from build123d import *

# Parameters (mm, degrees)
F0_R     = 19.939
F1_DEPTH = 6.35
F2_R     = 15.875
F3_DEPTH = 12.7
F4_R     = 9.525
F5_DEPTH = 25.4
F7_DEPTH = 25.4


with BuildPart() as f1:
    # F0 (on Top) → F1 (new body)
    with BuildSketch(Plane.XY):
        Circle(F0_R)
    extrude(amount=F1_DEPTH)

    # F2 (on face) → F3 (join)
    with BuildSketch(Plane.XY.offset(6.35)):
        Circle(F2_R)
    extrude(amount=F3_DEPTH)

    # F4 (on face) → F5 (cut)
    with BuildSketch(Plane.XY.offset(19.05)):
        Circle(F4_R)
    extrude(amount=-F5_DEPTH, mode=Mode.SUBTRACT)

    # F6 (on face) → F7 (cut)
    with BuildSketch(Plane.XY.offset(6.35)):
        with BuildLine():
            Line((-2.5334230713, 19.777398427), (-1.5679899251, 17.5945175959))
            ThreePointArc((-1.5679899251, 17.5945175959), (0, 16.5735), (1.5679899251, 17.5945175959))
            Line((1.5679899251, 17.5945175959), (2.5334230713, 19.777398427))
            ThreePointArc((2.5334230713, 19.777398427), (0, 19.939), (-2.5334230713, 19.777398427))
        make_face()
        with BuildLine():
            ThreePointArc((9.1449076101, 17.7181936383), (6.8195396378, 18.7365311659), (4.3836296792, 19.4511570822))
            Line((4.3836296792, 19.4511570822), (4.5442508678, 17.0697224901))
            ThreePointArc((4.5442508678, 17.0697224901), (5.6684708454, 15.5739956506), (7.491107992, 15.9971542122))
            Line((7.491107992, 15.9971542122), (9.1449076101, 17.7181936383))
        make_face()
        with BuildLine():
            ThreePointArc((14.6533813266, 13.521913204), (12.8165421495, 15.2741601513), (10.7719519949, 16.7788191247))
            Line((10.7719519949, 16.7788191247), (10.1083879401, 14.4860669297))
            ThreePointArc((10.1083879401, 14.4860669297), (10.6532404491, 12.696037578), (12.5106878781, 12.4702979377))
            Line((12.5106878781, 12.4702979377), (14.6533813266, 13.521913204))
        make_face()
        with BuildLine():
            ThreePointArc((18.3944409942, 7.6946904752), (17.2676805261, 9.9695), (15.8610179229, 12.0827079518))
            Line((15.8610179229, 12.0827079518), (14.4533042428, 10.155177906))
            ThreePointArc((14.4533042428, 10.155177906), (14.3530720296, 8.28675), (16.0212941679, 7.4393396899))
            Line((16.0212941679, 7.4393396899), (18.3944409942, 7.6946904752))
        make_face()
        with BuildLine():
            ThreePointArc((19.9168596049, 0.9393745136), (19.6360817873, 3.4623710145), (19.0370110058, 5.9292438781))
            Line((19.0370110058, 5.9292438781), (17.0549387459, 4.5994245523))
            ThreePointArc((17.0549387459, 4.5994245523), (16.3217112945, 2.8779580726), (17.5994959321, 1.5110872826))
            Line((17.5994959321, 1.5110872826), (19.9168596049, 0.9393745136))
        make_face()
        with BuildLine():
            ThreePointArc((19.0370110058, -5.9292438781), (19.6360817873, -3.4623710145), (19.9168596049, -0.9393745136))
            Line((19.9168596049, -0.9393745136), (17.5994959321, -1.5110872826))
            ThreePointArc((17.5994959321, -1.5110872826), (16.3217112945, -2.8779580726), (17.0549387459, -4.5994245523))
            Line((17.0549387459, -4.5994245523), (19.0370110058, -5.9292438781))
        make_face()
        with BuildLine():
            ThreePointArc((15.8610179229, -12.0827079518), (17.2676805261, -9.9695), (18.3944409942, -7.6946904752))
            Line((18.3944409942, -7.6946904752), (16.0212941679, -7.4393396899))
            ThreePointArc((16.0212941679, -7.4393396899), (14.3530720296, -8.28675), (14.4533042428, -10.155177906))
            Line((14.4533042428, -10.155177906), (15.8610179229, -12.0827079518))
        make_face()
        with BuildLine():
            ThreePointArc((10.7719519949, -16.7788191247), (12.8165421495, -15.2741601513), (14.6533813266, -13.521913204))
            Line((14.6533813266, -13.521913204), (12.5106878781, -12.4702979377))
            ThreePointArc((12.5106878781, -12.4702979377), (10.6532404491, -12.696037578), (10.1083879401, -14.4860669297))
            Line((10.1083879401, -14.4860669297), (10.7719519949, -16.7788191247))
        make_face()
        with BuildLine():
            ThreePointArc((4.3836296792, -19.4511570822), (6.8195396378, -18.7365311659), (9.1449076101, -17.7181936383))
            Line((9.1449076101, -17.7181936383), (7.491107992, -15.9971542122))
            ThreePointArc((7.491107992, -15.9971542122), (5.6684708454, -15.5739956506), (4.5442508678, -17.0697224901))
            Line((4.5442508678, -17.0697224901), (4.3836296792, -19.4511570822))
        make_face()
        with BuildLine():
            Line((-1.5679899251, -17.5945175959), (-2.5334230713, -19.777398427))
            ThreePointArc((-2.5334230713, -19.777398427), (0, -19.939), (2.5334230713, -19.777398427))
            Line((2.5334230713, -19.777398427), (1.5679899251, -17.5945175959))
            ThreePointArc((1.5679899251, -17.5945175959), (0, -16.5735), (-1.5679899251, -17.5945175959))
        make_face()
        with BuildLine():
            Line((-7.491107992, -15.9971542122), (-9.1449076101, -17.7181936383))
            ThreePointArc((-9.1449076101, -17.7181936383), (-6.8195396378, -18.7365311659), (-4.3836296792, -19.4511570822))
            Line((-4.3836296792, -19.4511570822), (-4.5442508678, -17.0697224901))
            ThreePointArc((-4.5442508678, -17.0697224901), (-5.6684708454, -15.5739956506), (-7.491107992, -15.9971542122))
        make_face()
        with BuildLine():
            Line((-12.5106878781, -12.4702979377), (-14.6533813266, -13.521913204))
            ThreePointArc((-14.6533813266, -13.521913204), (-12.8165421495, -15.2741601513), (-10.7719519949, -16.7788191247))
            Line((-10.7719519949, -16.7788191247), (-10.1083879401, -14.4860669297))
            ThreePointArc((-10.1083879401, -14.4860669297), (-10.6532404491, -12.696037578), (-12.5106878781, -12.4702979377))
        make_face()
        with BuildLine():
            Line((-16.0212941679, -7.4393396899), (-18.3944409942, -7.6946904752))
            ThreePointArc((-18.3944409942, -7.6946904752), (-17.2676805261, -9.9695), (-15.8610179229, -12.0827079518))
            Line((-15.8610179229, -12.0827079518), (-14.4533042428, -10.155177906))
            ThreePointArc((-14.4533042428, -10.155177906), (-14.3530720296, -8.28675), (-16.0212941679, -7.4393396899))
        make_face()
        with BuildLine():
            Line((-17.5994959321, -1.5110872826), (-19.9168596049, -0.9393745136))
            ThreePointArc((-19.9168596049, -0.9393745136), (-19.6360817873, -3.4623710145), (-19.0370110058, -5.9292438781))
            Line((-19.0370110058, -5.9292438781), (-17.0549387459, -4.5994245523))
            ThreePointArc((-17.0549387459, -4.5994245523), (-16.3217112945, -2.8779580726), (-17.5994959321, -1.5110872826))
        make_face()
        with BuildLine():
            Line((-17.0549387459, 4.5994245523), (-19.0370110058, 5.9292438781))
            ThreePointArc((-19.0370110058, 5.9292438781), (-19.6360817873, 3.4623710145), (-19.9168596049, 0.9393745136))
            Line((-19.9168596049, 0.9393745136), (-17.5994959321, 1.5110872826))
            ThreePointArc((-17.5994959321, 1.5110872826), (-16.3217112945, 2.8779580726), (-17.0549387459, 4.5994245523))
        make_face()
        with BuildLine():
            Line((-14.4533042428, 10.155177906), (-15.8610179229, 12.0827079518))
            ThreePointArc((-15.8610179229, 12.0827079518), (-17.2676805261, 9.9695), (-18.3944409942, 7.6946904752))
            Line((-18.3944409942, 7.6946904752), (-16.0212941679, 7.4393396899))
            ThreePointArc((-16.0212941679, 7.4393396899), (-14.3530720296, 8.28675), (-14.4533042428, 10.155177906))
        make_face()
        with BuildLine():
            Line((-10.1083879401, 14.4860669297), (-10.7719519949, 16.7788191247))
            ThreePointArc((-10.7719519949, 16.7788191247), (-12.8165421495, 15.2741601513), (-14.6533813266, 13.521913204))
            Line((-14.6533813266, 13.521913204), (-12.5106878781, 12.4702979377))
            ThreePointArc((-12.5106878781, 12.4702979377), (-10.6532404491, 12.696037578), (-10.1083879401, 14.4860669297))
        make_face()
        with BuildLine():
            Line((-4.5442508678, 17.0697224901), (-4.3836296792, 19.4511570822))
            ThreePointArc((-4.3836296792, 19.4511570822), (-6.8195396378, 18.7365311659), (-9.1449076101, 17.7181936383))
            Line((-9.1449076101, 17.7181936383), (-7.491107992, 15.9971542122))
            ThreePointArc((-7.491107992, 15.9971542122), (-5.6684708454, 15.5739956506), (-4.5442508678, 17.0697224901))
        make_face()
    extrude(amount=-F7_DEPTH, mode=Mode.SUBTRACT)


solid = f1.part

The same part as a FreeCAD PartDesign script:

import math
import FreeCAD as App
import Part
import Sketcher
from FreeCAD import Vector
Q = App.Units.Quantity

doc = App.newDocument("Part")
body = doc.addObject("PartDesign::Body", "Body")

# Sketch on XY plane
sketch1 = body.newObject("Sketcher::SketchObject", "Sketch")
sketch1.AttachmentSupport = (doc.getObject("XY_Plane"), [""])
sketch1.MapMode = "FlatFace"
sketch1.addGeometry(Part.Circle(Vector(0, 0, 0), Vector(0, 0, 1), 20), False)
sketch1.addConstraint(Sketcher.Constraint("Coincident", 0, 3, -1, 1))
sketch1.addConstraint(Sketcher.Constraint("Diameter", 0, Q("1.57 in")))
pad1 = body.newObject("PartDesign::Pad", "Pad")
pad1.Profile = sketch1
pad1.Length = Q("0.25 in")

# Sketch on XY plane
sketch2 = body.newObject("Sketcher::SketchObject", "Sketch001")
sketch2.AttachmentSupport = (doc.getObject("XY_Plane"), [""])
sketch2.MapMode = "FlatFace"
sketch2.AttachmentOffset = App.Placement(Vector(0, 0, 0.25 * 25.4), App.Rotation())
sketch2.addGeometry(Part.Circle(Vector(0, 0, 0), Vector(0, 0, 1), 16), False)
sketch2.addConstraint(Sketcher.Constraint("Coincident", 0, 3, -1, 1))
sketch2.addConstraint(Sketcher.Constraint("Diameter", 0, Q("1.25 in")))
pad2 = body.newObject("PartDesign::Pad", "Pad001")
pad2.Profile = sketch2
pad2.Length = Q("0.5 in")

# Sketch on XY plane
sketch3 = body.newObject("Sketcher::SketchObject", "Sketch002")
sketch3.AttachmentSupport = (doc.getObject("XY_Plane"), [""])
sketch3.MapMode = "FlatFace"
sketch3.AttachmentOffset = App.Placement(Vector(0, 0, 0.75 * 25.4), App.Rotation())
sketch3.addGeometry(Part.Circle(Vector(0, 0, 0), Vector(0, 0, 1), 10), False)
sketch3.addConstraint(Sketcher.Constraint("Coincident", 0, 3, -1, 1))
sketch3.addConstraint(Sketcher.Constraint("Diameter", 0, Q("0.75 in")))
pocket1 = body.newObject("PartDesign::Pocket", "Pocket")
pocket1.Profile = sketch3
pocket1.Length = Q("1 in")

# Sketch on XY plane
sketch4 = body.newObject("Sketcher::SketchObject", "Sketch003")
sketch4.AttachmentSupport = (doc.getObject("XY_Plane"), [""])
sketch4.MapMode = "FlatFace"
sketch4.AttachmentOffset = App.Placement(Vector(0, 0, 0.25 * 25.4), App.Rotation())
sketch4.addGeometry(Part.LineSegment(Vector(-2.5, 19.8, 0), Vector(-1.6, 17.6, 0)), False)
sketch4.addGeometry(Part.ArcOfCircle(Part.Circle(Vector(0, 18.3, 0), Vector(0, 0, 1), 1.7), math.radians(-156), math.radians(-24)), False)
sketch4.addGeometry(Part.LineSegment(Vector(1.6, 17.6, 0), Vector(2.5, 19.8, 0)), False)
sketch4.addGeometry(Part.ArcOfCircle(Part.Circle(Vector(0, 0, 0), Vector(0, 0, 1), 19.9), math.radians(82.7), math.radians(97.3)), False)
sketch4.addGeometry(Part.ArcOfCircle(Part.Circle(Vector(0, 0, 0), Vector(0, 0, 1), 19.9), math.radians(62.7), math.radians(77.3)), False)
sketch4.addGeometry(Part.LineSegment(Vector(4.4, 19.5, 0), Vector(4.5, 17.1, 0)), False)
sketch4.addGeometry(Part.ArcOfCircle(Part.Circle(Vector(6.3, 17.2, 0), Vector(0, 0, 1), 1.7), math.radians(-176), math.radians(-44)), False)
sketch4.addGeometry(Part.LineSegment(Vector(7.5, 16, 0), Vector(9.1, 17.7, 0)), False)
sketch4.addGeometry(Part.ArcOfCircle(Part.Circle(Vector(0, 0, 0), Vector(0, 0, 1), 19.9), math.radians(42.7), math.radians(57.3)), False)
sketch4.addGeometry(Part.LineSegment(Vector(10.8, 16.8, 0), Vector(10.1, 14.5, 0)), False)
sketch4.addGeometry(Part.ArcOfCircle(Part.Circle(Vector(11.8, 14, 0), Vector(0, 0, 1), 1.7), math.radians(164), math.radians(296)), False)
sketch4.addGeometry(Part.LineSegment(Vector(12.5, 12.5, 0), Vector(14.7, 13.5, 0)), False)
sketch4.addGeometry(Part.ArcOfCircle(Part.Circle(Vector(0, 0, 0), Vector(0, 0, 1), 19.9), math.radians(22.7), math.radians(37.3)), False)
sketch4.addGeometry(Part.LineSegment(Vector(15.9, 12.1, 0), Vector(14.5, 10.2, 0)), False)
sketch4.addGeometry(Part.ArcOfCircle(Part.Circle(Vector(15.8, 9.1, 0), Vector(0, 0, 1), 1.7), math.radians(144), math.radians(276)), False)
sketch4.addGeometry(Part.LineSegment(Vector(16, 7.4, 0), Vector(18.4, 7.7, 0)), False)
sketch4.addGeometry(Part.ArcOfCircle(Part.Circle(Vector(0, 0, 0), Vector(0, 0, 1), 19.9), math.radians(2.7), math.radians(17.3)), False)
sketch4.addGeometry(Part.LineSegment(Vector(19, 5.9, 0), Vector(17.1, 4.6, 0)), False)
sketch4.addGeometry(Part.ArcOfCircle(Part.Circle(Vector(18, 3.2, 0), Vector(0, 0, 1), 1.7), math.radians(124), math.radians(256)), False)
sketch4.addGeometry(Part.LineSegment(Vector(17.6, 1.5, 0), Vector(19.9, 0.9, 0)), False)
sketch4.addGeometry(Part.ArcOfCircle(Part.Circle(Vector(0, 0, 0), Vector(0, 0, 1), 19.9), math.radians(-17.3), math.radians(-2.7)), False)
sketch4.addGeometry(Part.LineSegment(Vector(19.9, -0.9, 0), Vector(17.6, -1.5, 0)), False)
sketch4.addGeometry(Part.ArcOfCircle(Part.Circle(Vector(18, -3.2, 0), Vector(0, 0, 1), 1.7), math.radians(104), math.radians(236)), False)
sketch4.addGeometry(Part.LineSegment(Vector(17.1, -4.6, 0), Vector(19, -5.9, 0)), False)
sketch4.addGeometry(Part.ArcOfCircle(Part.Circle(Vector(0, 0, 0), Vector(0, 0, 1), 19.9), math.radians(-37.3), math.radians(-22.7)), False)
sketch4.addGeometry(Part.LineSegment(Vector(18.4, -7.7, 0), Vector(16, -7.4, 0)), False)
sketch4.addGeometry(Part.ArcOfCircle(Part.Circle(Vector(15.8, -9.1, 0), Vector(0, 0, 1), 1.7), math.radians(84), math.radians(216)), False)
sketch4.addGeometry(Part.LineSegment(Vector(14.5, -10.2, 0), Vector(15.9, -12.1, 0)), False)
sketch4.addGeometry(Part.ArcOfCircle(Part.Circle(Vector(0, 0, 0), Vector(0, 0, 1), 19.9), math.radians(-57.3), math.radians(-42.7)), False)
sketch4.addGeometry(Part.LineSegment(Vector(14.7, -13.5, 0), Vector(12.5, -12.5, 0)), False)
sketch4.addGeometry(Part.ArcOfCircle(Part.Circle(Vector(11.8, -14, 0), Vector(0, 0, 1), 1.7), math.radians(64), math.radians(196)), False)
sketch4.addGeometry(Part.LineSegment(Vector(10.1, -14.5, 0), Vector(10.8, -16.8, 0)), False)
sketch4.addGeometry(Part.ArcOfCircle(Part.Circle(Vector(0, 0, 0), Vector(0, 0, 1), 19.9), math.radians(-77.3), math.radians(-62.7)), False)
sketch4.addGeometry(Part.LineSegment(Vector(9.1, -17.7, 0), Vector(7.5, -16, 0)), False)
sketch4.addGeometry(Part.ArcOfCircle(Part.Circle(Vector(6.3, -17.2, 0), Vector(0, 0, 1), 1.7), math.radians(44), math.radians(176)), False)
sketch4.addGeometry(Part.LineSegment(Vector(4.5, -17.1, 0), Vector(4.4, -19.5, 0)), False)
sketch4.addGeometry(Part.LineSegment(Vector(-1.6, -17.6, 0), Vector(-2.5, -19.8, 0)), False)
sketch4.addGeometry(Part.ArcOfCircle(Part.Circle(Vector(0, 0, 0), Vector(0, 0, 1), 19.9), math.radians(-97.3), math.radians(-82.7)), False)
sketch4.addGeometry(Part.LineSegment(Vector(2.5, -19.8, 0), Vector(1.6, -17.6, 0)), False)
sketch4.addGeometry(Part.ArcOfCircle(Part.Circle(Vector(0, -18.3, 0), Vector(0, 0, 1), 1.7), math.radians(24), math.radians(156)), False)
sketch4.addGeometry(Part.LineSegment(Vector(-7.5, -16, 0), Vector(-9.1, -17.7, 0)), False)
sketch4.addGeometry(Part.ArcOfCircle(Part.Circle(Vector(0, 0, 0), Vector(0, 0, 1), 19.9), math.radians(-117.3), math.radians(-102.7)), False)
sketch4.addGeometry(Part.LineSegment(Vector(-4.4, -19.5, 0), Vector(-4.5, -17.1, 0)), False)
sketch4.addGeometry(Part.ArcOfCircle(Part.Circle(Vector(-6.3, -17.2, 0), Vector(0, 0, 1), 1.7), math.radians(4), math.radians(136)), False)
sketch4.addGeometry(Part.LineSegment(Vector(-12.5, -12.5, 0), Vector(-14.7, -13.5, 0)), False)
sketch4.addGeometry(Part.ArcOfCircle(Part.Circle(Vector(0, 0, 0), Vector(0, 0, 1), 19.9), math.radians(-137.3), math.radians(-122.7)), False)
sketch4.addGeometry(Part.LineSegment(Vector(-10.8, -16.8, 0), Vector(-10.1, -14.5, 0)), False)
sketch4.addGeometry(Part.ArcOfCircle(Part.Circle(Vector(-11.8, -14, 0), Vector(0, 0, 1), 1.7), math.radians(-16), math.radians(116)), False)
sketch4.addGeometry(Part.LineSegment(Vector(-16, -7.4, 0), Vector(-18.4, -7.7, 0)), False)
sketch4.addGeometry(Part.ArcOfCircle(Part.Circle(Vector(0, 0, 0), Vector(0, 0, 1), 19.9), math.radians(-157.3), math.radians(-142.7)), False)
sketch4.addGeometry(Part.LineSegment(Vector(-15.9, -12.1, 0), Vector(-14.5, -10.2, 0)), False)
sketch4.addGeometry(Part.ArcOfCircle(Part.Circle(Vector(-15.8, -9.1, 0), Vector(0, 0, 1), 1.7), math.radians(-36), math.radians(96)), False)
sketch4.addGeometry(Part.LineSegment(Vector(-17.6, -1.5, 0), Vector(-19.9, -0.9, 0)), False)
sketch4.addGeometry(Part.ArcOfCircle(Part.Circle(Vector(0, 0, 0), Vector(0, 0, 1), 19.9), math.radians(-177.3), math.radians(-162.7)), False)
sketch4.addGeometry(Part.LineSegment(Vector(-19, -5.9, 0), Vector(-17.1, -4.6, 0)), False)
sketch4.addGeometry(Part.ArcOfCircle(Part.Circle(Vector(-18, -3.2, 0), Vector(0, 0, 1), 1.7), math.radians(-56), math.radians(76)), False)
sketch4.addGeometry(Part.LineSegment(Vector(-17.1, 4.6, 0), Vector(-19, 5.9, 0)), False)
sketch4.addGeometry(Part.ArcOfCircle(Part.Circle(Vector(0, 0, 0), Vector(0, 0, 1), 19.9), math.radians(162.7), math.radians(177.3)), False)
sketch4.addGeometry(Part.LineSegment(Vector(-19.9, 0.9, 0), Vector(-17.6, 1.5, 0)), False)
sketch4.addGeometry(Part.ArcOfCircle(Part.Circle(Vector(-18, 3.2, 0), Vector(0, 0, 1), 1.7), math.radians(-76), math.radians(56)), False)
sketch4.addGeometry(Part.LineSegment(Vector(-14.5, 10.2, 0), Vector(-15.9, 12.1, 0)), False)
sketch4.addGeometry(Part.ArcOfCircle(Part.Circle(Vector(0, 0, 0), Vector(0, 0, 1), 19.9), math.radians(142.7), math.radians(157.3)), False)
sketch4.addGeometry(Part.LineSegment(Vector(-18.4, 7.7, 0), Vector(-16, 7.4, 0)), False)
sketch4.addGeometry(Part.ArcOfCircle(Part.Circle(Vector(-15.8, 9.1, 0), Vector(0, 0, 1), 1.7), math.radians(-96), math.radians(36)), False)
sketch4.addGeometry(Part.LineSegment(Vector(-10.1, 14.5, 0), Vector(-10.8, 16.8, 0)), False)
sketch4.addGeometry(Part.ArcOfCircle(Part.Circle(Vector(0, 0, 0), Vector(0, 0, 1), 19.9), math.radians(122.7), math.radians(137.3)), False)
sketch4.addGeometry(Part.LineSegment(Vector(-14.7, 13.5, 0), Vector(-12.5, 12.5, 0)), False)
sketch4.addGeometry(Part.ArcOfCircle(Part.Circle(Vector(-11.8, 14, 0), Vector(0, 0, 1), 1.7), math.radians(-116), math.radians(16)), False)
sketch4.addGeometry(Part.LineSegment(Vector(-4.5, 17.1, 0), Vector(-4.4, 19.5, 0)), False)
sketch4.addGeometry(Part.ArcOfCircle(Part.Circle(Vector(0, 0, 0), Vector(0, 0, 1), 19.9), math.radians(102.7), math.radians(117.3)), False)
sketch4.addGeometry(Part.LineSegment(Vector(-9.1, 17.7, 0), Vector(-7.5, 16, 0)), False)
sketch4.addGeometry(Part.ArcOfCircle(Part.Circle(Vector(-6.3, 17.2, 0), Vector(0, 0, 1), 1.7), math.radians(-136), math.radians(-4)), False)
sketch4.addConstraint(Sketcher.Constraint("Tangent", 0, 2, 1, 1))
sketch4.addConstraint(Sketcher.Constraint("Tangent", 1, 2, 2, 1))
sketch4.addConstraint(Sketcher.Constraint("Coincident", 2, 2, 3, 1))
sketch4.addConstraint(Sketcher.Constraint("Coincident", 3, 2, 0, 1))
sketch4.addConstraint(Sketcher.Constraint("Coincident", 4, 2, 5, 1))
sketch4.addConstraint(Sketcher.Constraint("Tangent", 5, 2, 6, 1))
sketch4.addConstraint(Sketcher.Constraint("Tangent", 6, 2, 7, 1))
sketch4.addConstraint(Sketcher.Constraint("Coincident", 7, 2, 4, 1))
sketch4.addConstraint(Sketcher.Constraint("Coincident", 8, 2, 9, 1))
sketch4.addConstraint(Sketcher.Constraint("Tangent", 9, 2, 10, 1))
sketch4.addConstraint(Sketcher.Constraint("Tangent", 10, 2, 11, 1))
sketch4.addConstraint(Sketcher.Constraint("Coincident", 11, 2, 8, 1))
sketch4.addConstraint(Sketcher.Constraint("Coincident", 12, 2, 13, 1))
sketch4.addConstraint(Sketcher.Constraint("Tangent", 13, 2, 14, 1))
sketch4.addConstraint(Sketcher.Constraint("Tangent", 14, 2, 15, 1))
sketch4.addConstraint(Sketcher.Constraint("Coincident", 15, 2, 12, 1))
sketch4.addConstraint(Sketcher.Constraint("Coincident", 16, 2, 17, 1))
sketch4.addConstraint(Sketcher.Constraint("Tangent", 17, 2, 18, 1))
sketch4.addConstraint(Sketcher.Constraint("Tangent", 18, 2, 19, 1))
sketch4.addConstraint(Sketcher.Constraint("Coincident", 19, 2, 16, 1))
sketch4.addConstraint(Sketcher.Constraint("Coincident", 20, 2, 21, 1))
sketch4.addConstraint(Sketcher.Constraint("Tangent", 21, 2, 22, 1))
sketch4.addConstraint(Sketcher.Constraint("Tangent", 22, 2, 23, 1))
sketch4.addConstraint(Sketcher.Constraint("Coincident", 23, 2, 20, 1))
sketch4.addConstraint(Sketcher.Constraint("Coincident", 24, 2, 25, 1))
sketch4.addConstraint(Sketcher.Constraint("Tangent", 25, 2, 26, 1))
sketch4.addConstraint(Sketcher.Constraint("Tangent", 26, 2, 27, 1))
sketch4.addConstraint(Sketcher.Constraint("Coincident", 27, 2, 24, 1))
sketch4.addConstraint(Sketcher.Constraint("Coincident", 28, 2, 29, 1))
sketch4.addConstraint(Sketcher.Constraint("Tangent", 29, 2, 30, 1))
sketch4.addConstraint(Sketcher.Constraint("Tangent", 30, 2, 31, 1))
sketch4.addConstraint(Sketcher.Constraint("Coincident", 31, 2, 28, 1))
sketch4.addConstraint(Sketcher.Constraint("Coincident", 32, 2, 33, 1))
sketch4.addConstraint(Sketcher.Constraint("Tangent", 33, 2, 34, 1))
sketch4.addConstraint(Sketcher.Constraint("Tangent", 34, 2, 35, 1))
sketch4.addConstraint(Sketcher.Constraint("Coincident", 35, 2, 32, 1))
sketch4.addConstraint(Sketcher.Constraint("Coincident", 36, 2, 37, 1))
sketch4.addConstraint(Sketcher.Constraint("Coincident", 37, 2, 38, 1))
sketch4.addConstraint(Sketcher.Constraint("Tangent", 38, 2, 39, 1))
sketch4.addConstraint(Sketcher.Constraint("Tangent", 39, 2, 36, 1))
sketch4.addConstraint(Sketcher.Constraint("Coincident", 40, 2, 41, 1))
sketch4.addConstraint(Sketcher.Constraint("Coincident", 41, 2, 42, 1))
sketch4.addConstraint(Sketcher.Constraint("Tangent", 42, 2, 43, 1))
sketch4.addConstraint(Sketcher.Constraint("Tangent", 43, 2, 40, 1))
sketch4.addConstraint(Sketcher.Constraint("Coincident", 44, 2, 45, 1))
sketch4.addConstraint(Sketcher.Constraint("Coincident", 45, 2, 46, 1))
sketch4.addConstraint(Sketcher.Constraint("Tangent", 46, 2, 47, 1))
sketch4.addConstraint(Sketcher.Constraint("Tangent", 47, 2, 44, 1))
sketch4.addConstraint(Sketcher.Constraint("Coincident", 48, 2, 49, 1))
sketch4.addConstraint(Sketcher.Constraint("Coincident", 49, 2, 50, 1))
sketch4.addConstraint(Sketcher.Constraint("Tangent", 50, 2, 51, 1))
sketch4.addConstraint(Sketcher.Constraint("Tangent", 51, 2, 48, 1))
sketch4.addConstraint(Sketcher.Constraint("Coincident", 52, 2, 53, 1))
sketch4.addConstraint(Sketcher.Constraint("Coincident", 53, 2, 54, 1))
sketch4.addConstraint(Sketcher.Constraint("Tangent", 54, 2, 55, 1))
sketch4.addConstraint(Sketcher.Constraint("Tangent", 55, 2, 52, 1))
sketch4.addConstraint(Sketcher.Constraint("Coincident", 56, 2, 57, 1))
sketch4.addConstraint(Sketcher.Constraint("Coincident", 57, 2, 58, 1))
sketch4.addConstraint(Sketcher.Constraint("Tangent", 58, 2, 59, 1))
sketch4.addConstraint(Sketcher.Constraint("Tangent", 59, 2, 56, 1))
sketch4.addConstraint(Sketcher.Constraint("Coincident", 60, 2, 61, 1))
sketch4.addConstraint(Sketcher.Constraint("Coincident", 61, 2, 62, 1))
sketch4.addConstraint(Sketcher.Constraint("Tangent", 62, 2, 63, 1))
sketch4.addConstraint(Sketcher.Constraint("Tangent", 63, 2, 60, 1))
sketch4.addConstraint(Sketcher.Constraint("Coincident", 64, 2, 65, 1))
sketch4.addConstraint(Sketcher.Constraint("Coincident", 65, 2, 66, 1))
sketch4.addConstraint(Sketcher.Constraint("Tangent", 66, 2, 67, 1))
sketch4.addConstraint(Sketcher.Constraint("Tangent", 67, 2, 64, 1))
sketch4.addConstraint(Sketcher.Constraint("Coincident", 68, 2, 69, 1))
sketch4.addConstraint(Sketcher.Constraint("Coincident", 69, 2, 70, 1))
sketch4.addConstraint(Sketcher.Constraint("Tangent", 70, 2, 71, 1))
sketch4.addConstraint(Sketcher.Constraint("Tangent", 71, 2, 68, 1))
sketch4.addConstraint(Sketcher.Constraint("Coincident", 3, 3, -1, 1))
sketch4.addConstraint(Sketcher.Constraint("Coincident", 4, 3, -1, 1))
sketch4.addConstraint(Sketcher.Constraint("Coincident", 8, 3, -1, 1))
sketch4.addConstraint(Sketcher.Constraint("Coincident", 12, 3, -1, 1))
sketch4.addConstraint(Sketcher.Constraint("Coincident", 16, 3, -1, 1))
sketch4.addConstraint(Sketcher.Constraint("Coincident", 20, 3, -1, 1))
sketch4.addConstraint(Sketcher.Constraint("Coincident", 24, 3, -1, 1))
sketch4.addConstraint(Sketcher.Constraint("Coincident", 28, 3, -1, 1))
sketch4.addConstraint(Sketcher.Constraint("Coincident", 32, 3, -1, 1))
sketch4.addConstraint(Sketcher.Constraint("Coincident", 37, 3, -1, 1))
sketch4.addConstraint(Sketcher.Constraint("Coincident", 41, 3, -1, 1))
sketch4.addConstraint(Sketcher.Constraint("Coincident", 45, 3, -1, 1))
sketch4.addConstraint(Sketcher.Constraint("Coincident", 49, 3, -1, 1))
sketch4.addConstraint(Sketcher.Constraint("Coincident", 53, 3, -1, 1))
sketch4.addConstraint(Sketcher.Constraint("Coincident", 57, 3, -1, 1))
sketch4.addConstraint(Sketcher.Constraint("Coincident", 61, 3, -1, 1))
sketch4.addConstraint(Sketcher.Constraint("Coincident", 65, 3, -1, 1))
sketch4.addConstraint(Sketcher.Constraint("Coincident", 69, 3, -1, 1))
sketch4.addConstraint(Sketcher.Constraint("Equal", 3, 4))
sketch4.addConstraint(Sketcher.Constraint("Equal", 1, 6))
sketch4.addConstraint(Sketcher.Constraint("Equal", 4, 8))
sketch4.addConstraint(Sketcher.Constraint("Equal", 6, 10))
sketch4.addConstraint(Sketcher.Constraint("Equal", 8, 12))
sketch4.addConstraint(Sketcher.Constraint("Equal", 10, 14))
sketch4.addConstraint(Sketcher.Constraint("Equal", 12, 16))
sketch4.addConstraint(Sketcher.Constraint("Equal", 14, 18))
sketch4.addConstraint(Sketcher.Constraint("Equal", 16, 20))
sketch4.addConstraint(Sketcher.Constraint("Equal", 18, 22))
sketch4.addConstraint(Sketcher.Constraint("Equal", 20, 24))
sketch4.addConstraint(Sketcher.Constraint("Equal", 22, 26))
sketch4.addConstraint(Sketcher.Constraint("Equal", 24, 28))
sketch4.addConstraint(Sketcher.Constraint("Equal", 26, 30))
sketch4.addConstraint(Sketcher.Constraint("Equal", 28, 32))
sketch4.addConstraint(Sketcher.Constraint("Equal", 30, 34))
sketch4.addConstraint(Sketcher.Constraint("Equal", 32, 37))
sketch4.addConstraint(Sketcher.Constraint("Equal", 34, 39))
sketch4.addConstraint(Sketcher.Constraint("Equal", 37, 41))
sketch4.addConstraint(Sketcher.Constraint("Equal", 39, 43))
sketch4.addConstraint(Sketcher.Constraint("Equal", 41, 45))
sketch4.addConstraint(Sketcher.Constraint("Equal", 43, 47))
sketch4.addConstraint(Sketcher.Constraint("Equal", 45, 49))
sketch4.addConstraint(Sketcher.Constraint("Equal", 47, 51))
sketch4.addConstraint(Sketcher.Constraint("Equal", 49, 53))
sketch4.addConstraint(Sketcher.Constraint("Equal", 51, 55))
sketch4.addConstraint(Sketcher.Constraint("Equal", 53, 57))
sketch4.addConstraint(Sketcher.Constraint("Equal", 55, 59))
sketch4.addConstraint(Sketcher.Constraint("Equal", 57, 61))
sketch4.addConstraint(Sketcher.Constraint("Equal", 59, 63))
sketch4.addConstraint(Sketcher.Constraint("Equal", 61, 65))
sketch4.addConstraint(Sketcher.Constraint("Equal", 63, 67))
sketch4.addConstraint(Sketcher.Constraint("Equal", 65, 69))
sketch4.addConstraint(Sketcher.Constraint("Equal", 67, 71))
sketch4.addConstraint(Sketcher.Constraint("Symmetric", 1, 3, 39, 3, -1, 1))
sketch4.addConstraint(Sketcher.Constraint("Symmetric", 6, 3, 43, 3, -1, 1))
sketch4.addConstraint(Sketcher.Constraint("Symmetric", 10, 3, 47, 3, -1, 1))
sketch4.addConstraint(Sketcher.Constraint("Symmetric", 14, 3, 51, 3, -1, 1))
sketch4.addConstraint(Sketcher.Constraint("Symmetric", 18, 3, 55, 3, -1, 1))
sketch4.addConstraint(Sketcher.Constraint("Symmetric", 22, 3, 59, 3, -1, 1))
sketch4.addConstraint(Sketcher.Constraint("Symmetric", 26, 3, 63, 3, -1, 1))
sketch4.addConstraint(Sketcher.Constraint("Symmetric", 30, 3, 67, 3, -1, 1))
sketch4.addConstraint(Sketcher.Constraint("Symmetric", 34, 3, 71, 3, -1, 1))
sketch4.addConstraint(Sketcher.Constraint("Symmetric", 34, 3, 43, 3, -2))
sketch4.addConstraint(Sketcher.Constraint("Symmetric", 30, 3, 47, 3, -2))
sketch4.addConstraint(Sketcher.Constraint("Symmetric", 26, 3, 51, 3, -2))
sketch4.addConstraint(Sketcher.Constraint("Symmetric", 22, 3, 55, 3, -2))
sketch4.addConstraint(Sketcher.Constraint("Symmetric", 0, 2, 1, 2, -2))
sketch4.addConstraint(Sketcher.Constraint("Parallel", 2, 36))
sketch4.addConstraint(Sketcher.Constraint("Parallel", 0, 38))
sketch4.addConstraint(Sketcher.Constraint("Parallel", 7, 40))
sketch4.addConstraint(Sketcher.Constraint("Parallel", 5, 42))
sketch4.addConstraint(Sketcher.Constraint("Parallel", 11, 44))
sketch4.addConstraint(Sketcher.Constraint("Parallel", 9, 46))
sketch4.addConstraint(Sketcher.Constraint("Parallel", 15, 48))
sketch4.addConstraint(Sketcher.Constraint("Parallel", 13, 50))
sketch4.addConstraint(Sketcher.Constraint("Parallel", 19, 52))
sketch4.addConstraint(Sketcher.Constraint("Parallel", 17, 54))
sketch4.addConstraint(Sketcher.Constraint("Parallel", 23, 56))
sketch4.addConstraint(Sketcher.Constraint("Parallel", 21, 58))
sketch4.addConstraint(Sketcher.Constraint("Parallel", 27, 60))
sketch4.addConstraint(Sketcher.Constraint("Parallel", 25, 62))
sketch4.addConstraint(Sketcher.Constraint("Parallel", 31, 64))
sketch4.addConstraint(Sketcher.Constraint("Parallel", 29, 66))
sketch4.addConstraint(Sketcher.Constraint("Parallel", 35, 68))
sketch4.addConstraint(Sketcher.Constraint("Parallel", 33, 70))
sketch4.addConstraint(Sketcher.Constraint("Horizontal", 32, 2, 40, 2))
sketch4.addConstraint(Sketcher.Constraint("Horizontal", 35, 2, 41, 2))
sketch4.addConstraint(Sketcher.Constraint("Horizontal", 28, 2, 44, 2))
sketch4.addConstraint(Sketcher.Constraint("Horizontal", 31, 2, 45, 2))
sketch4.addConstraint(Sketcher.Constraint("Horizontal", 24, 2, 48, 2))
sketch4.addConstraint(Sketcher.Constraint("Horizontal", 27, 2, 49, 2))
sketch4.addConstraint(Sketcher.Constraint("Horizontal", 20, 2, 52, 2))
sketch4.addConstraint(Sketcher.Constraint("Horizontal", 23, 2, 53, 2))
sketch4.addConstraint(Sketcher.Constraint("Equal", 2, 5))
sketch4.addConstraint(Sketcher.Constraint("Equal", 5, 7))
sketch4.addConstraint(Sketcher.Constraint("Equal", 7, 9))
sketch4.addConstraint(Sketcher.Constraint("Equal", 9, 11))
sketch4.addConstraint(Sketcher.Constraint("Equal", 11, 13))
sketch4.addConstraint(Sketcher.Constraint("Equal", 13, 15))
sketch4.addConstraint(Sketcher.Constraint("Equal", 15, 17))
sketch4.addConstraint(Sketcher.Constraint("Equal", 17, 19))
sketch4.addConstraint(Sketcher.Constraint("Radius", 3, Q("0.785 in")))
sketch4.addConstraint(Sketcher.Constraint("Radius", 1, Q("0.0675 in")))
sketch4.addConstraint(Sketcher.Constraint("DistanceY", -1, 1, 1, 3, Q("0.72 in")))
sketch4.addConstraint(Sketcher.Constraint("DistanceY", -1, 1, 14, 3, Q("0.36 in")))
sketch4.addConstraint(Sketcher.Constraint("DistanceY", -1, 1, 6, 3, Q("17.185099 mm")))
sketch4.addConstraint(Sketcher.Constraint("DistanceX", -1, 1, 10, 3, Q("11.7553 mm")))
sketch4.addConstraint(Sketcher.Constraint("DistanceY", -1, 1, 2, 2, Q("19.777398 mm")))
sketch4.addConstraint(Sketcher.Constraint("DistanceY", -1, 1, 10, 3, Q("14.009421 mm")))
sketch4.addConstraint(Sketcher.Constraint("DistanceX", -1, 1, 4, 2, Q("4.38363 mm")))
sketch4.addConstraint(Sketcher.Constraint("DistanceY", -1, 1, 14, 2, Q("7.43934 mm")))
sketch4.addConstraint(Sketcher.Constraint("DistanceX", -1, 1, 16, 2, Q("19.037011 mm")))
sketch4.addConstraint(Sketcher.Constraint("DistanceX", -1, 1, 17, 2, Q("17.054939 mm")))
pocket2 = body.newObject("PartDesign::Pocket", "Pocket001")
pocket2.Profile = sketch4
pocket2.Length = Q("1 in")

doc.recompute()
